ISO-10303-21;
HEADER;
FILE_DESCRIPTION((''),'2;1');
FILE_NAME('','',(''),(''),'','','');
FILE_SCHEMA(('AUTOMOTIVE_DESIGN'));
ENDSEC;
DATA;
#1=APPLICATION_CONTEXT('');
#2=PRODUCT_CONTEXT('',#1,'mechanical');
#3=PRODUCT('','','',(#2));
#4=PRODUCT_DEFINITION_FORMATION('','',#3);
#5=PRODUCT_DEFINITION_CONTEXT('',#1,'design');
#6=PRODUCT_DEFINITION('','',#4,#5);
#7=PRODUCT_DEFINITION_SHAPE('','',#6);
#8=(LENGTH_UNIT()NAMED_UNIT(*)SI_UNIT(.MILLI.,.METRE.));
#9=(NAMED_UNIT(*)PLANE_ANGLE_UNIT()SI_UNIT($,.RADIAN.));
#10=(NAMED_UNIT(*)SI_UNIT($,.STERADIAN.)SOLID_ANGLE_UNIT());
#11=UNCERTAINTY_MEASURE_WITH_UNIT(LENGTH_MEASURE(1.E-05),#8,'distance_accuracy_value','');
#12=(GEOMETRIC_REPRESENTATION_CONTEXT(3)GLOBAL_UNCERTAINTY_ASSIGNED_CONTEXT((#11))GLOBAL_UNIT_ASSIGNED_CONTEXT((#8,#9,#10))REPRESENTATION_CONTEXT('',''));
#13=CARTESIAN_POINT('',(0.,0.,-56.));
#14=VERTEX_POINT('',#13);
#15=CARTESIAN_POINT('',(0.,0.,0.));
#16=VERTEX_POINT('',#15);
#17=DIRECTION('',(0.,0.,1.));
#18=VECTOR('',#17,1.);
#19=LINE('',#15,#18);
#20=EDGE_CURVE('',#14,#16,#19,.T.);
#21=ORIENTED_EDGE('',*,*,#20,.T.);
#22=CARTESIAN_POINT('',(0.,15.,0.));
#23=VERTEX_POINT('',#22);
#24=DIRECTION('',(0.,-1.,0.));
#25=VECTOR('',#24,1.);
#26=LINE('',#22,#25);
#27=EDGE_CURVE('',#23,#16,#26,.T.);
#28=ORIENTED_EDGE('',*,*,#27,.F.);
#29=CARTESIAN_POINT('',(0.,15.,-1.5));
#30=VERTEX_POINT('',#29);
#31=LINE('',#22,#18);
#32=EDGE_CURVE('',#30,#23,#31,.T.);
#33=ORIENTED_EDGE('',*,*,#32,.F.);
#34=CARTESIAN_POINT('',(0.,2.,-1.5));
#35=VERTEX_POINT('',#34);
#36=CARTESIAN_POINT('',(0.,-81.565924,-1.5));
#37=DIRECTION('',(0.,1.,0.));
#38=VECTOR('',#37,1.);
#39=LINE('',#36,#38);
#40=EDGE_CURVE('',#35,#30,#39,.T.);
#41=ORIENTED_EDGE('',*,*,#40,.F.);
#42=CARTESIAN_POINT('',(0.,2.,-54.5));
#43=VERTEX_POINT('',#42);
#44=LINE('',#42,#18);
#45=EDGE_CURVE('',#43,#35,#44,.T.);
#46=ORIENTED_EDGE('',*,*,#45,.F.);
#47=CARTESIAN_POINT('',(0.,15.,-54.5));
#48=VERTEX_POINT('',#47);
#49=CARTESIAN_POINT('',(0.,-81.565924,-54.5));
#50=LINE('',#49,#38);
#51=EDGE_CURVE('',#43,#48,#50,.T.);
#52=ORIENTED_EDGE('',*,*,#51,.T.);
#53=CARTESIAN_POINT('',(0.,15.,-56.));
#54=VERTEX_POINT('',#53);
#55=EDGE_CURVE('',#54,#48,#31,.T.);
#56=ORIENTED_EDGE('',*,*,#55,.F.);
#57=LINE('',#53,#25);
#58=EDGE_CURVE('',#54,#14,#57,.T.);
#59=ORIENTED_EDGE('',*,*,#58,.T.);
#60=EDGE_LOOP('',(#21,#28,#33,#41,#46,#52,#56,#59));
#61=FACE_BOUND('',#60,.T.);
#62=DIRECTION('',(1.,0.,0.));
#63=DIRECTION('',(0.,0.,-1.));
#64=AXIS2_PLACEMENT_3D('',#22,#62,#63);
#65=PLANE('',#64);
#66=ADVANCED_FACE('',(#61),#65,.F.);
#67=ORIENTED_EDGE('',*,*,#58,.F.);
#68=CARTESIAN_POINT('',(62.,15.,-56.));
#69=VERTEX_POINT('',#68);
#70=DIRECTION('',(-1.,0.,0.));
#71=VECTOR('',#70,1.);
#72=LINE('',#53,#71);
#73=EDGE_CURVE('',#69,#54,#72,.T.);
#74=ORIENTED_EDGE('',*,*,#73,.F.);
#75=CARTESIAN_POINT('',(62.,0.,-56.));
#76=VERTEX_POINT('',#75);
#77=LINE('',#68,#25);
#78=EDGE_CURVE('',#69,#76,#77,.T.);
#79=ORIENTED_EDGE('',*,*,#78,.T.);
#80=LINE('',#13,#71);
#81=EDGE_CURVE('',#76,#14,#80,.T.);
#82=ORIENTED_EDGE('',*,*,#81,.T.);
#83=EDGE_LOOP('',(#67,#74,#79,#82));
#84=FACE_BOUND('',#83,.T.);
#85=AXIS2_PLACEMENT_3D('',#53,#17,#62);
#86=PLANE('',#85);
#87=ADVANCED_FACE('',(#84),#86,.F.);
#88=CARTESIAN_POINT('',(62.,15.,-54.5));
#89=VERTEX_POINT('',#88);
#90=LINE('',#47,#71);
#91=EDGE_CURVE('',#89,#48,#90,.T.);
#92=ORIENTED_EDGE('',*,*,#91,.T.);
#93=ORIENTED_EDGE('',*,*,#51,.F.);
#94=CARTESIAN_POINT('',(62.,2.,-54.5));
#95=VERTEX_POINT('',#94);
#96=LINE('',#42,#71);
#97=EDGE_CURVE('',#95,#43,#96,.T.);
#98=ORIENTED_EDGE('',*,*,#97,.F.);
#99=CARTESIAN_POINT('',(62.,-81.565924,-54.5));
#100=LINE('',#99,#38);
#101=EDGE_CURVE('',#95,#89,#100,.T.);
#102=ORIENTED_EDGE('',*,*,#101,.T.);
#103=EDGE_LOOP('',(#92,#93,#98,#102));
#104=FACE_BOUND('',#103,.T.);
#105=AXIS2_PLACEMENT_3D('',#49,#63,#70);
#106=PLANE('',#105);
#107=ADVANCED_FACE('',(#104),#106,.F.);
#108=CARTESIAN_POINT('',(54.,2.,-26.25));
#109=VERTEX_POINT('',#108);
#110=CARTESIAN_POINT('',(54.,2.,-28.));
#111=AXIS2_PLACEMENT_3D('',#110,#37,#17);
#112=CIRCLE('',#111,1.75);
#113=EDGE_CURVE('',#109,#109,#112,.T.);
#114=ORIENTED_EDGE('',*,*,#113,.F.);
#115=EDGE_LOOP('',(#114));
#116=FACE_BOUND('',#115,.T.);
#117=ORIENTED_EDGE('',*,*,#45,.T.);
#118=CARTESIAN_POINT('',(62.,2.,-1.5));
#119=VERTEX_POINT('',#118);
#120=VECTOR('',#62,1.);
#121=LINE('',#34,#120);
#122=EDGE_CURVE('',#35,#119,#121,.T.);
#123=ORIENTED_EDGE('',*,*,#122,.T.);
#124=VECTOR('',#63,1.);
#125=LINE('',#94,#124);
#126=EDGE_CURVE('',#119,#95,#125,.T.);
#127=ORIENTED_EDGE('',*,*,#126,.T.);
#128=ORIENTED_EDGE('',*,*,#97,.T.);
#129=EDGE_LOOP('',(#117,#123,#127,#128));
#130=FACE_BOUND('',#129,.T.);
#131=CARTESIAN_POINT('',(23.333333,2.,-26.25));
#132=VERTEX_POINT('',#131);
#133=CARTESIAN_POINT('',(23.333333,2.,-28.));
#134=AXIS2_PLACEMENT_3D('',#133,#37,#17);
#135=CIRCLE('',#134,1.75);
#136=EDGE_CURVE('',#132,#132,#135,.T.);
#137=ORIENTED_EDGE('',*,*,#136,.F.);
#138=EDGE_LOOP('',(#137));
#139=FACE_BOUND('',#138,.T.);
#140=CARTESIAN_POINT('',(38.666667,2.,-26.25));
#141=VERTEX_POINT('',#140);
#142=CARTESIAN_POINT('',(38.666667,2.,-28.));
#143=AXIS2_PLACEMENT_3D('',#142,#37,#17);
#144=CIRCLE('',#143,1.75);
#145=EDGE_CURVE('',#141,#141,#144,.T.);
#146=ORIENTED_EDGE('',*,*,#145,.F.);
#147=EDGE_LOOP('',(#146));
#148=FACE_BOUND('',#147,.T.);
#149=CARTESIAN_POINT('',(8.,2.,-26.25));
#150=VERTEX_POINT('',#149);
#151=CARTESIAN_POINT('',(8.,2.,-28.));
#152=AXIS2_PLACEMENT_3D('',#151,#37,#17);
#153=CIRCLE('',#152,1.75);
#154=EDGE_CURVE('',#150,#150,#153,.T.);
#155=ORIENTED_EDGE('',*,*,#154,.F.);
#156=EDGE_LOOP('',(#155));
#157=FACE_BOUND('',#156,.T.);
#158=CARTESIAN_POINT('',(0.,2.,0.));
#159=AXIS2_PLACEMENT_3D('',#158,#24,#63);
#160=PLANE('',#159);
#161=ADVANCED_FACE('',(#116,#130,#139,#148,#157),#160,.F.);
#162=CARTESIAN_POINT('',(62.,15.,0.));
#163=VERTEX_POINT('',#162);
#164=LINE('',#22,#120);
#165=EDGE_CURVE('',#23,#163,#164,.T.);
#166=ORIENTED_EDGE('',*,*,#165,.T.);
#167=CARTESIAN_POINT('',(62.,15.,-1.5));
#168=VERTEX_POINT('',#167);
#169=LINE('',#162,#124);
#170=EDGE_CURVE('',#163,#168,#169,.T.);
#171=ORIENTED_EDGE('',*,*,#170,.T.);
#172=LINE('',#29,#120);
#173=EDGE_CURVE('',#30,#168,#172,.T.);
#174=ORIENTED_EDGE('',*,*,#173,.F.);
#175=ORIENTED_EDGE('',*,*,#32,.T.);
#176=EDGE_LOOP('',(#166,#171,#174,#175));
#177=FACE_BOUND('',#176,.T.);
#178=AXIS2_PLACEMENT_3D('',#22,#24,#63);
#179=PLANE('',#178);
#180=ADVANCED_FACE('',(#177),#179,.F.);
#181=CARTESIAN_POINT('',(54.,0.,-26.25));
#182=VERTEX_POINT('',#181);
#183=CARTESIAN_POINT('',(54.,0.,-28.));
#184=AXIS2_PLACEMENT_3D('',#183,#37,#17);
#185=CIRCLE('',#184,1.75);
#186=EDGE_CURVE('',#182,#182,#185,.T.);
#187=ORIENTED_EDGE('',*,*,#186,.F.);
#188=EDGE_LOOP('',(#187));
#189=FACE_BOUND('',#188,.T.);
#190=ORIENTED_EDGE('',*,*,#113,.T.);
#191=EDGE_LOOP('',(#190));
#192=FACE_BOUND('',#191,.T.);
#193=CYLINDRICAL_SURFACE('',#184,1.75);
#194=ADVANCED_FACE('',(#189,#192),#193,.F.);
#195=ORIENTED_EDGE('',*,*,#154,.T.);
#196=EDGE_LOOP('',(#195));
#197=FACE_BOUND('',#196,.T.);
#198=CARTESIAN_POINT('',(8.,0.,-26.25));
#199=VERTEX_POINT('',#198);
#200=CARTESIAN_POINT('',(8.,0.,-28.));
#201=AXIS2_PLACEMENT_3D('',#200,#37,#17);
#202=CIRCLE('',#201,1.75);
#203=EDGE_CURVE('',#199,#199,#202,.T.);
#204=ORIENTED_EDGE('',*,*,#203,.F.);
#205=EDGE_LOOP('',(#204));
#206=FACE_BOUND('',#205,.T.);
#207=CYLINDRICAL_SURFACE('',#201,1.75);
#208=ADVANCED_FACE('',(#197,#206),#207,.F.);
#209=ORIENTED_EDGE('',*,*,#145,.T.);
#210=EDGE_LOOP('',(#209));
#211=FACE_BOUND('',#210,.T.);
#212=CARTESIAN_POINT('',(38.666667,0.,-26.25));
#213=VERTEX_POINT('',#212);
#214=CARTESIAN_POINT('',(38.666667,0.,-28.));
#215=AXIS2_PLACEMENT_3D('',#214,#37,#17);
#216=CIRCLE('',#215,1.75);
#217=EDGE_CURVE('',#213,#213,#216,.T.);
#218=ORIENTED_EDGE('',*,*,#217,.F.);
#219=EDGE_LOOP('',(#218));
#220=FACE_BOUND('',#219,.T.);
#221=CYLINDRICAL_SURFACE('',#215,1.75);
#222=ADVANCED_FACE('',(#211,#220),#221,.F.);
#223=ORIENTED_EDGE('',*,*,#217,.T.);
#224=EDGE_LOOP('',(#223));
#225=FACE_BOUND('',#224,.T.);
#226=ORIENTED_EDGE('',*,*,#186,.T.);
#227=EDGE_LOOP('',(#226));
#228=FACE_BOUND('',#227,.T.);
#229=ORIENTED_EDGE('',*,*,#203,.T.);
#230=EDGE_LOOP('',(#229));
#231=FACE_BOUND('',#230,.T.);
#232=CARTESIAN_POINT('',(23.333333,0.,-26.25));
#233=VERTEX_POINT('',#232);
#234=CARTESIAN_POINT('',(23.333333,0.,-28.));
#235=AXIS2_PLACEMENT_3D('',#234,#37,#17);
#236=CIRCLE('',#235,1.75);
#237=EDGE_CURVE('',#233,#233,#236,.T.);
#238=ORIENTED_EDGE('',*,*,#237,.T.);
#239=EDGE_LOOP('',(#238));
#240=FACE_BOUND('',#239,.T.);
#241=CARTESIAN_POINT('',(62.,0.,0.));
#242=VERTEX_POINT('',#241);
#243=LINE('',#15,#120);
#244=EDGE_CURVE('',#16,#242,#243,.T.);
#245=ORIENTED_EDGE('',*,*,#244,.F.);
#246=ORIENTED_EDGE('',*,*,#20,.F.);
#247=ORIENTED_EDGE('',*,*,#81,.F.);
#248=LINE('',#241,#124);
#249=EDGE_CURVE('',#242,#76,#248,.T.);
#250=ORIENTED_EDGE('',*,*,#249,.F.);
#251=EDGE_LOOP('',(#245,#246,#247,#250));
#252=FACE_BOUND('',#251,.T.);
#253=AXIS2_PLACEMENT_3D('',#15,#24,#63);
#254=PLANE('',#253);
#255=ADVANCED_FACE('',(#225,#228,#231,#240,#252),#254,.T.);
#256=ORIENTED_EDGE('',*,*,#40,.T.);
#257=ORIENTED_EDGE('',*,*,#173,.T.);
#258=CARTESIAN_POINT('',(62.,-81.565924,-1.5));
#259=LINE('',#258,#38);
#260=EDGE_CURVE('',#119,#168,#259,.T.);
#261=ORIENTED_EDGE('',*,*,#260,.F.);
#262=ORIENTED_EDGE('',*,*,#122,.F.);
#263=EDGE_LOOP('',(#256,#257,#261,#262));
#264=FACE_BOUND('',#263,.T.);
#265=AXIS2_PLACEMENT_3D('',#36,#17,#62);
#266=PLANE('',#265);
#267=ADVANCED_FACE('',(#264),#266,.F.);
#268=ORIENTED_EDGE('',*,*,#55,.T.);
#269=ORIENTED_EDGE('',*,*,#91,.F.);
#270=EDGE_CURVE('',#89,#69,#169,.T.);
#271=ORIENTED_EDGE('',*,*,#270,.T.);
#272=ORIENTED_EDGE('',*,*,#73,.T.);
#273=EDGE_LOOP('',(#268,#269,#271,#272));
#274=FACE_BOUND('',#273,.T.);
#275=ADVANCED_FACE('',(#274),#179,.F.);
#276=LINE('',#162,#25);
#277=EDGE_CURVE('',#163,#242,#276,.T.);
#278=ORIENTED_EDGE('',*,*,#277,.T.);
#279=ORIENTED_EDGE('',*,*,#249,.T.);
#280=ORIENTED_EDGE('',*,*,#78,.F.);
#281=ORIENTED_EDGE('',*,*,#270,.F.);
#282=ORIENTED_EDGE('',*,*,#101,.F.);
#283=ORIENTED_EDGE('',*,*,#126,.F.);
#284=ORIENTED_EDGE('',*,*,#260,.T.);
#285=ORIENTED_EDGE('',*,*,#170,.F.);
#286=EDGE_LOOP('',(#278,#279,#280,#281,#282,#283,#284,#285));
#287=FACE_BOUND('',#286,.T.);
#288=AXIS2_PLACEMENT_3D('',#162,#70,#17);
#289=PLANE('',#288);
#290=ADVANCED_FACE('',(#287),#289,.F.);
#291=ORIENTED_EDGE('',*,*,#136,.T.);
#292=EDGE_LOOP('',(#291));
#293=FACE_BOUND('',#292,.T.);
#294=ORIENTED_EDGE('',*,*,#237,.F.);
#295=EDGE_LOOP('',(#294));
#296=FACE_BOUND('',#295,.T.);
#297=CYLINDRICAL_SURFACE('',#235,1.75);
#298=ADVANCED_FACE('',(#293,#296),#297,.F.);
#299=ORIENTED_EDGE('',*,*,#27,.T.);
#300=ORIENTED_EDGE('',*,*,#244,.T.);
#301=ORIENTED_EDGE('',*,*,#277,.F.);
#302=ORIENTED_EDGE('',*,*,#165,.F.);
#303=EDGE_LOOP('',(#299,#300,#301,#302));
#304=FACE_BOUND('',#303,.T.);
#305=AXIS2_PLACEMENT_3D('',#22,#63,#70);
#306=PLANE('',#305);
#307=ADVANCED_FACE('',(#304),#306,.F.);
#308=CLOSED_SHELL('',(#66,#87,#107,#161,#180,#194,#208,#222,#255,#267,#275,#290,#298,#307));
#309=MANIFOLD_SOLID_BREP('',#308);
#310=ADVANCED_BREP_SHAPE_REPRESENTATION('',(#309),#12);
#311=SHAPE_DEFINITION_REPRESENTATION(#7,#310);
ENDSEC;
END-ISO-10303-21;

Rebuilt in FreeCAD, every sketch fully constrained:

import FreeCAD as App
import Part
import Sketcher

doc = App.newDocument("Part")
body = doc.addObject("PartDesign::Body", "Body")

sketch1 = body.newObject("Sketcher::SketchObject", "Sketch")
sketch1.AttachmentSupport = (doc.getObject("XZ_Plane"), [""])
sketch1.MapMode = "FlatFace"
sketch1.addGeometry(Part.LineSegment(App.Vector(0, -56, 0), App.Vector(0, 0, 0)), False)
sketch1.addGeometry(Part.LineSegment(App.Vector(0, 0, 0), App.Vector(62, 0, 0)), False)
sketch1.addGeometry(Part.LineSegment(App.Vector(62, 0, 0), App.Vector(62, -56, 0)), False)
sketch1.addGeometry(Part.LineSegment(App.Vector(62, -56, 0), App.Vector(0, -56, 0)), False)
sketch1.addConstraint(Sketcher.Constraint("Coincident", 0, 2, 1, 1))
sketch1.addConstraint(Sketcher.Constraint("Coincident", 1, 2, 2, 1))
sketch1.addConstraint(Sketcher.Constraint("Coincident", 2, 2, 3, 1))
sketch1.addConstraint(Sketcher.Constraint("Coincident", 3, 2, 0, 1))
sketch1.addConstraint(Sketcher.Constraint("Vertical", 0))
sketch1.addConstraint(Sketcher.Constraint("Horizontal", 1))
sketch1.addConstraint(Sketcher.Constraint("Vertical", 2))
sketch1.addConstraint(Sketcher.Constraint("Horizontal", 3))
sketch1.addConstraint(Sketcher.Constraint("Coincident", 0, 2, -1, 1))
sketch1.addConstraint(Sketcher.Constraint("DistanceX", 1, 1, 1, 2, 62.0))
sketch1.addConstraint(Sketcher.Constraint("DistanceY", 0, 1, 0, 2, 56.0))
pad1 = body.newObject("PartDesign::Pad", "Pad")
pad1.Profile = sketch1
pad1.Length = 15
pad1.Reversed = True

sketch2 = body.newObject("Sketcher::SketchObject", "Sketch001")
sketch2.AttachmentSupport = (doc.getObject("XZ_Plane"), [""])
sketch2.MapMode = "FlatFace"
sketch2.AttachmentOffset = App.Placement(App.Vector(0, 0, -15), App.Rotation())
sketch2.addGeometry(Part.LineSegment(App.Vector(0, -54.5, 0), App.Vector(0, -1.5, 0)), False)
sketch2.addGeometry(Part.LineSegment(App.Vector(0, -1.5, 0), App.Vector(62, -1.5, 0)), False)
sketch2.addGeometry(Part.LineSegment(App.Vector(62, -1.5, 0), App.Vector(62, -54.5, 0)), False)
sketch2.addGeometry(Part.LineSegment(App.Vector(62, -54.5, 0), App.Vector(0, -54.5, 0)), False)
sketch2.addConstraint(Sketcher.Constraint("Coincident", 0, 2, 1, 1))
sketch2.addConstraint(Sketcher.Constraint("Coincident", 1, 2, 2, 1))
sketch2.addConstraint(Sketcher.Constraint("Coincident", 2, 2, 3, 1))
sketch2.addConstraint(Sketcher.Constraint("Coincident", 3, 2, 0, 1))
sketch2.addConstraint(Sketcher.Constraint("Vertical", 0))
sketch2.addConstraint(Sketcher.Constraint("Horizontal", 1))
sketch2.addConstraint(Sketcher.Constraint("Vertical", 2))
sketch2.addConstraint(Sketcher.Constraint("Horizontal", 3))
sketch2.addConstraint(Sketcher.Constraint("PointOnObject", 0, 2, -2))
sketch2.addConstraint(Sketcher.Constraint("DistanceX", 1, 1, 1, 2, 62.0))
sketch2.addConstraint(Sketcher.Constraint("DistanceY", 0, 1, 0, 2, 53.0))
sketch2.addConstraint(Sketcher.Constraint("DistanceY", 0, 2, -1, 1, 1.5))
pocket1 = body.newObject("PartDesign::Pocket", "Pocket")
pocket1.Profile = sketch2
pocket1.Length = 13
pocket1.Reversed = True

sketch3 = body.newObject("Sketcher::SketchObject", "Sketch002")
sketch3.AttachmentSupport = (doc.getObject("XZ_Plane"), [""])
sketch3.MapMode = "FlatFace"
sketch3.AttachmentOffset = App.Placement(App.Vector(0, 0, -2), App.Rotation())
sketch3.addGeometry(Part.Circle(App.Vector(8, -28, 0), App.Vector(0, 0, 1), 1.75), False)
sketch3.addGeometry(Part.Circle(App.Vector(23.333333, -28, 0), App.Vector(0, 0, 1), 1.75), False)
sketch3.addGeometry(Part.Circle(App.Vector(38.666667, -28, 0), App.Vector(0, 0, 1), 1.75), False)
sketch3.addGeometry(Part.Circle(App.Vector(54, -28, 0), App.Vector(0, 0, 1), 1.75), False)
sketch3.addConstraint(Sketcher.Constraint("Equal", 0, 1))
sketch3.addConstraint(Sketcher.Constraint("Equal", 1, 2))
sketch3.addConstraint(Sketcher.Constraint("Equal", 2, 3))
sketch3.addConstraint(Sketcher.Constraint("Horizontal", 0, 3, 1, 3))
sketch3.addConstraint(Sketcher.Constraint("Horizontal", 1, 3, 2, 3))
sketch3.addConstraint(Sketcher.Constraint("Horizontal", 2, 3, 3, 3))
sketch3.addConstraint(Sketcher.Constraint("Diameter", 0, 3.5))
sketch3.addConstraint(Sketcher.Constraint("DistanceX", -1, 1, 0, 3, 8.0))
sketch3.addConstraint(Sketcher.Constraint("DistanceY", 0, 3, -1, 1, 28.0))
sketch3.addConstraint(Sketcher.Constraint("DistanceX", -1, 1, 3, 3, 54.0))
sketch3.addConstraint(Sketcher.Constraint("DistanceX", -1, 1, 1, 3, 23.333333))
sketch3.addConstraint(Sketcher.Constraint("DistanceX", -1, 1, 2, 3, 38.666667))
pocket2 = body.newObject("PartDesign::Pocket", "Pocket001")
pocket2.Profile = sketch3
pocket2.Type = "ThroughAll"
pocket2.Reversed = True

doc.recompute()
